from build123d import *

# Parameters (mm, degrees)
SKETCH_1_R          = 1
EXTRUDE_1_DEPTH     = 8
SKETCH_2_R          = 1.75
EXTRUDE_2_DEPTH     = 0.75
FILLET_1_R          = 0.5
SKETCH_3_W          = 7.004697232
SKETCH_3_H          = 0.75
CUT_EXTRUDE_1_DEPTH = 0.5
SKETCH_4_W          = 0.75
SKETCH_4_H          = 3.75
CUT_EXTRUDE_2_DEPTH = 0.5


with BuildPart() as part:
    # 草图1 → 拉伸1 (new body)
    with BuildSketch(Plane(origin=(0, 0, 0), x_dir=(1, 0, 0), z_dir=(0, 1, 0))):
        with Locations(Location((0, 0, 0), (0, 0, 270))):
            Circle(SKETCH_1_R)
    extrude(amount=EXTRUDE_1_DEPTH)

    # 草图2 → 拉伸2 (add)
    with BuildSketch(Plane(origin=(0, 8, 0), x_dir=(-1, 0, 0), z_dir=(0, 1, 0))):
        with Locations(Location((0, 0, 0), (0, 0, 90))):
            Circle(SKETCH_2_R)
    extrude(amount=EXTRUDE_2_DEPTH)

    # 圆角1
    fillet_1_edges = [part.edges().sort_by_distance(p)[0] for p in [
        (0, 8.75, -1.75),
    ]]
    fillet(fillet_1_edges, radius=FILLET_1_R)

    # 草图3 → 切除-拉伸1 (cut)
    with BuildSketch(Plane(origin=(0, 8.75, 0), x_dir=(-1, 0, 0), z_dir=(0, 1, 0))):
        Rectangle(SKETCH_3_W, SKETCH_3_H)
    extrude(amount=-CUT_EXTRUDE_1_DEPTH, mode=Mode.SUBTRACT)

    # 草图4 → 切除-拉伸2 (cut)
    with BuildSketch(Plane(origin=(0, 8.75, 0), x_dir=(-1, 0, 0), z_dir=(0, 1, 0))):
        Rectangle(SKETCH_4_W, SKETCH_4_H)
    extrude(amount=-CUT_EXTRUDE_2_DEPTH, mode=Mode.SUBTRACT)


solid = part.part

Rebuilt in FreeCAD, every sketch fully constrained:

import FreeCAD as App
import Part
import Sketcher
Q = App.Units.Quantity


def edges_at(feature, points):
    """Names of the edges that pass closest to the given points."""
    edges = feature.Shape.Edges
    near = lambda p: min(range(len(edges)), key=lambda i: edges[i].distToShape(Part.Vertex(*p))[0])
    return sorted({f"Edge{near(p) + 1}" for p in points})


def add_polygon(sketch, points):
    """Adds a closed chain of lines whose ends are joined by coincident constraints."""
    first, n = sketch.GeometryCount, len(points)
    for a, b in zip(points, points[1:] + points[:1]):
        sketch.addGeometry(Part.LineSegment(App.Vector(*a, 0), App.Vector(*b, 0)), False)
    for i in range(n):
        sketch.addConstraint(Sketcher.Constraint("Coincident", first + i, 2, first + (i + 1) % n, 1))

doc = App.newDocument("Part")
body = doc.addObject("PartDesign::Body", "Body")

# Sketch on XZ plane
sketch1 = body.newObject("Sketcher::SketchObject", "Sketch")
sketch1.AttachmentSupport = (doc.getObject("XZ_Plane"), [""])
sketch1.MapMode = "FlatFace"
sketch1.addGeometry(Part.Circle(App.Vector(0, 0, 0), App.Vector(0, 0, 1), 1), False)
sketch1.addConstraint([
    Sketcher.Constraint("Coincident", 0, 3, -1, 1),
    Sketcher.Constraint("Diameter", 0, Q("2 mm")),
])
pad1 = body.newObject("PartDesign::Pad", "Pad")
pad1.Profile = sketch1
pad1.Length = 8
pad1.Reversed = True

# Sketch on XZ plane
sketch2 = body.newObject("Sketcher::SketchObject", "Sketch001")
sketch2.AttachmentSupport = (doc.getObject("XZ_Plane"), [""])
sketch2.MapMode = "FlatFace"
sketch2.AttachmentOffset = App.Placement(App.Vector(0, 0, -8), App.Rotation())
sketch2.addGeometry(Part.Circle(App.Vector(0, 0, 0), App.Vector(0, 0, 1), 1.8), False)
sketch2.addConstraint([
    Sketcher.Constraint("Coincident", 0, 3, -1, 1),
    Sketcher.Constraint("Diameter", 0, Q("3.5 mm")),
])
pad2 = body.newObject("PartDesign::Pad", "Pad001")
pad2.Profile = sketch2
pad2.Length = 0.75
pad2.Reversed = True
doc.recompute()

fillet = body.newObject("PartDesign::Fillet", "Fillet")
fillet.Base = (pad2, edges_at(pad2, [(0, 8.75, -1.75)]))
fillet.Radius = 0.5

# Sketch on XZ plane
sketch3 = body.newObject("Sketcher::SketchObject", "Sketch002")
sketch3.AttachmentSupport = (doc.getObject("XZ_Plane"), [""])
sketch3.MapMode = "FlatFace"
sketch3.AttachmentOffset = App.Placement(App.Vector(0, 0, -8.75), App.Rotation())
add_polygon(sketch3, [(3.5, 0.4), (3.5, -0.4), (-3.5, -0.4), (-3.5, 0.4)])  # lines 0-3
sketch3.addConstraint([
    Sketcher.Constraint("Vertical", 0),
    Sketcher.Constraint("Horizontal", 1),
    Sketcher.Constraint("Vertical", 2),
    Sketcher.Constraint("Horizontal", 3),
    Sketcher.Constraint("Symmetric", 0, 2, 2, 2, -1, 1),
    Sketcher.Constraint("DistanceY", 0, 2, 0, 1, Q("0.75 mm")),
    Sketcher.Constraint("DistanceX", 1, 2, 1, 1, Q("7.004697 mm")),
])
pocket1 = body.newObject("PartDesign::Pocket", "Pocket")
pocket1.Profile = sketch3
pocket1.Length = 0.5
pocket1.Reversed = True

# Sketch on XZ plane
sketch4 = body.newObject("Sketcher::SketchObject", "Sketch003")
sketch4.AttachmentSupport = (doc.getObject("XZ_Plane"), [""])
sketch4.MapMode = "FlatFace"
sketch4.AttachmentOffset = App.Placement(App.Vector(0, 0, -8.75), App.Rotation())
add_polygon(sketch4, [(0.4, 1.9), (0.4, -1.9), (-0.4, -1.9), (-0.4, 1.9)])  # lines 0-3
sketch4.addConstraint([
    Sketcher.Constraint("Vertical", 0),
    Sketcher.Constraint("Horizontal", 1),
    Sketcher.Constraint("Vertical", 2),
    Sketcher.Constraint("Horizontal", 3),
    Sketcher.Constraint("Symmetric", 0, 2, 2, 2, -1, 1),
    Sketcher.Constraint("DistanceX", 1, 2, 1, 1, Q("0.75 mm")),
    Sketcher.Constraint("DistanceY", 0, 2, 0, 1, Q("3.75 mm")),
])
pocket2 = body.newObject("PartDesign::Pocket", "Pocket001")
pocket2.Profile = sketch4
pocket2.Length = 0.5
pocket2.Reversed = True

doc.recompute()
